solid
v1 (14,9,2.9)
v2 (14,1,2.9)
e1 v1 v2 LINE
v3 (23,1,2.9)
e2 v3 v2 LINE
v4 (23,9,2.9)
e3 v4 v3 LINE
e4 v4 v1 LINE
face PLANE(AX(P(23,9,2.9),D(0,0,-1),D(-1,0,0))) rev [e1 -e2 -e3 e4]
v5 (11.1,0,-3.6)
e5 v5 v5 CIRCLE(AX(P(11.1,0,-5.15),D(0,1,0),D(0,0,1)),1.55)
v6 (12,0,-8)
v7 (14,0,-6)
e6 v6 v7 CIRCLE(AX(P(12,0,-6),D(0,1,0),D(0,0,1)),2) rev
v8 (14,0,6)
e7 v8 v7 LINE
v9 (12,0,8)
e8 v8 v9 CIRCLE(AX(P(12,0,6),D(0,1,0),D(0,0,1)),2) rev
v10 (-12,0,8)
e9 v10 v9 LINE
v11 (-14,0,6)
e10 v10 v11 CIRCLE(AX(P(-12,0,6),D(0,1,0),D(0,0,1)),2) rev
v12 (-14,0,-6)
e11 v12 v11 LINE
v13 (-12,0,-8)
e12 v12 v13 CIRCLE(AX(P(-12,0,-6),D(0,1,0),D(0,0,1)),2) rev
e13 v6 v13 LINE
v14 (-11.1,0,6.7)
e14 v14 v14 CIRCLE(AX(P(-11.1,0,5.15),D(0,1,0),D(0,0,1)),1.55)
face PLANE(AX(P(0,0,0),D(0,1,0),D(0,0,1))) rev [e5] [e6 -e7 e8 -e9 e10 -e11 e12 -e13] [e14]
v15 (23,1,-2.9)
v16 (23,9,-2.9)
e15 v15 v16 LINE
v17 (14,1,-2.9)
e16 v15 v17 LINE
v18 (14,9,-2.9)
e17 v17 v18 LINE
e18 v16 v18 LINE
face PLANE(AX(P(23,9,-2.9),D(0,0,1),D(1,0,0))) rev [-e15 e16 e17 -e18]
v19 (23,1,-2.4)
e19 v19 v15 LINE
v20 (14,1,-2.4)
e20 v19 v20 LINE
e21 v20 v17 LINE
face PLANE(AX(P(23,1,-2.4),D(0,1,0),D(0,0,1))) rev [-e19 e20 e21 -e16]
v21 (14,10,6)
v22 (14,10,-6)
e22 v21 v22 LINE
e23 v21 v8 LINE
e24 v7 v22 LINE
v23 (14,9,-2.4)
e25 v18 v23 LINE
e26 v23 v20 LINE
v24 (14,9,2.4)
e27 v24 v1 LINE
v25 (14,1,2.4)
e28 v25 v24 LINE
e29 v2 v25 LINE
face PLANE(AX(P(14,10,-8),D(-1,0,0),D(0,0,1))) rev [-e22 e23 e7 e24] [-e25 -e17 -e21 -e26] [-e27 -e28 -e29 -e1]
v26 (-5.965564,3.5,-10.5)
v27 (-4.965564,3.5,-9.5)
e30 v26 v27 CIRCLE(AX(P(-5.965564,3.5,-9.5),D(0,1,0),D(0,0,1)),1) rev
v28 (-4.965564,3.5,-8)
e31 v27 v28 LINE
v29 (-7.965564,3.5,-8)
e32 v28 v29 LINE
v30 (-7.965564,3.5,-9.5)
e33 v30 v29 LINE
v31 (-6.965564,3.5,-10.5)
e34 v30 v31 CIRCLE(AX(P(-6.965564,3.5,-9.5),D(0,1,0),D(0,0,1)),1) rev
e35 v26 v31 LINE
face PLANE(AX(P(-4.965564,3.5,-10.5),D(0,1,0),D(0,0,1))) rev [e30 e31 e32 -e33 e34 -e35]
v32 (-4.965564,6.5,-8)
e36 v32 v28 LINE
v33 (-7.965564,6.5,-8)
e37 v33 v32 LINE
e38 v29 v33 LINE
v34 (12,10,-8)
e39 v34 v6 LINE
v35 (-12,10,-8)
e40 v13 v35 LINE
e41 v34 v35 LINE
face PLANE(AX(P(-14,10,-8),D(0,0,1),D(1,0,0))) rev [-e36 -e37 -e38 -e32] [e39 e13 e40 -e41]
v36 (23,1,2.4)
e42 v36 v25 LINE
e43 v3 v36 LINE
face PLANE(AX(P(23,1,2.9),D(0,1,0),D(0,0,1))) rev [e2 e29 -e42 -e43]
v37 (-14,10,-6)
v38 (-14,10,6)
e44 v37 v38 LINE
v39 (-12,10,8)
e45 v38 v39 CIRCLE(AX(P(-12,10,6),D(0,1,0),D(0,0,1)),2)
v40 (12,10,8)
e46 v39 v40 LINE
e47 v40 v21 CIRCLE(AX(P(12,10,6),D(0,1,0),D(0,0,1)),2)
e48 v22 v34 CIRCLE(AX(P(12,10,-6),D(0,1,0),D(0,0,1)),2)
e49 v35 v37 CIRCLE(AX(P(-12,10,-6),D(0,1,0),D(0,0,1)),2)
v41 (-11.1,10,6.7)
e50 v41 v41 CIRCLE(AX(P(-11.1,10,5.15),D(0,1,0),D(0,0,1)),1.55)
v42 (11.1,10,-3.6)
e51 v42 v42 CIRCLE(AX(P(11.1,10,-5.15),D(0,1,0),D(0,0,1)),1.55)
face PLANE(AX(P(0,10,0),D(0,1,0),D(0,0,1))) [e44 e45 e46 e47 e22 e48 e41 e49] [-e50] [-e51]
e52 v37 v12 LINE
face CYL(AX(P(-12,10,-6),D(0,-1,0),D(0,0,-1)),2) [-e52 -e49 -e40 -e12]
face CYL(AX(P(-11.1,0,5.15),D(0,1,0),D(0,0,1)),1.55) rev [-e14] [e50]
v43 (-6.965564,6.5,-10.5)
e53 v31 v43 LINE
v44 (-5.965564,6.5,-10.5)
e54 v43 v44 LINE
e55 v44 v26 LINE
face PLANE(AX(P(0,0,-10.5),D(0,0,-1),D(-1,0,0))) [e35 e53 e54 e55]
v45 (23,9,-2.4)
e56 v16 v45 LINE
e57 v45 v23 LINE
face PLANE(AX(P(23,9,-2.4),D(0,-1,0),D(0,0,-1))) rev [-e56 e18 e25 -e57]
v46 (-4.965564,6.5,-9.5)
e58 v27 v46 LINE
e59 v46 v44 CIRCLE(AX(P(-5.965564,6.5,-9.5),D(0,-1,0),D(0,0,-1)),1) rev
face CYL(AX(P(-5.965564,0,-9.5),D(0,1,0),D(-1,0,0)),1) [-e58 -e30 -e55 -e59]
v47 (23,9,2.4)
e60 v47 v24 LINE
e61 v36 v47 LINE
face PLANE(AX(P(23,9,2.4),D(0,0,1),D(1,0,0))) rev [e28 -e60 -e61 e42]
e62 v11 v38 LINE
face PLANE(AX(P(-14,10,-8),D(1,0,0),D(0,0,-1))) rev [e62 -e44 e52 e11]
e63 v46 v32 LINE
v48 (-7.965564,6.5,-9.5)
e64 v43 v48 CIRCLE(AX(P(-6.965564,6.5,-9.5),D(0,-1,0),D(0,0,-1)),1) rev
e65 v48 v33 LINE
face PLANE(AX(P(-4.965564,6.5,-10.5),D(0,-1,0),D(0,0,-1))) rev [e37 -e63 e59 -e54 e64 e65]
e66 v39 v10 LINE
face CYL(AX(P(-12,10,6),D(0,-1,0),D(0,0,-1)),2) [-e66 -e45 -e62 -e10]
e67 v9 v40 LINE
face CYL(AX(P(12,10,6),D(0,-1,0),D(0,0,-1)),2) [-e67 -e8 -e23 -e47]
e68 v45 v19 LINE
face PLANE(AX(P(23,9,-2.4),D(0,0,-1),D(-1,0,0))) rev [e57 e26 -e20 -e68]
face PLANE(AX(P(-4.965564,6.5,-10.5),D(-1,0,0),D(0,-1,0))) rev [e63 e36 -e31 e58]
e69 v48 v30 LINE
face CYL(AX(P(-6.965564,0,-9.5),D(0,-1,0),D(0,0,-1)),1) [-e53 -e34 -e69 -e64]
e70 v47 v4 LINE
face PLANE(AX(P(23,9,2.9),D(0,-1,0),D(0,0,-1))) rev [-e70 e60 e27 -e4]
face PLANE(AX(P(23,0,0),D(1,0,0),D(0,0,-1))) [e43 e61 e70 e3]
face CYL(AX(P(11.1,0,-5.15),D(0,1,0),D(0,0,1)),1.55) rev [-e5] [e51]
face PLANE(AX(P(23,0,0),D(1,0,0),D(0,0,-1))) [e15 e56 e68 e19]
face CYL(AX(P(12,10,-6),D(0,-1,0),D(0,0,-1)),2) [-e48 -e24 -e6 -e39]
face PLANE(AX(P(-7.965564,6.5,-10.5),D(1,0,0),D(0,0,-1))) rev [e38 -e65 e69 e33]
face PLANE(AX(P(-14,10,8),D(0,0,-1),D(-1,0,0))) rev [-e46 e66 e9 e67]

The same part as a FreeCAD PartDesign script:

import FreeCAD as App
import Part
import Sketcher


def edges_at(feature, points):
    """Names of the edges that pass closest to the given points."""
    edges = feature.Shape.Edges
    near = lambda p: min(range(len(edges)), key=lambda i: edges[i].distToShape(Part.Vertex(*p))[0])
    return sorted({f"Edge{near(p) + 1}" for p in points})

doc = App.newDocument("Part")
body = doc.addObject("PartDesign::Body", "Body")

# Sketch on XZ plane
sketch1 = body.newObject("Sketcher::SketchObject", "Sketch")
sketch1.AttachmentSupport = (doc.getObject("XZ_Plane"), [""])
sketch1.MapMode = "FlatFace"
sketch1.addGeometry([
    Part.LineSegment(App.Vector(-14, -8, 0), App.Vector(-14, 8, 0)),
    Part.LineSegment(App.Vector(-14, 8, 0), App.Vector(14, 8, 0)),
    Part.LineSegment(App.Vector(14, 8, 0), App.Vector(14, -8, 0)),
    Part.LineSegment(App.Vector(14, -8, 0), App.Vector(-14, -8, 0)),
], False)
sketch1.addConstraint([
    Sketcher.Constraint("Coincident", 0, 2, 1, 1),
    Sketcher.Constraint("Coincident", 1, 2, 2, 1),
    Sketcher.Constraint("Coincident", 2, 2, 3, 1),
    Sketcher.Constraint("Coincident", 3, 2, 0, 1),
    Sketcher.Constraint("Vertical", 0),
    Sketcher.Constraint("Horizontal", 1),
    Sketcher.Constraint("Vertical", 2),
    Sketcher.Constraint("Horizontal", 3),
    Sketcher.Constraint("Symmetric", 0, 2, 2, 2, -1, 1),
    Sketcher.Constraint("DistanceX", 1, 1, 1, 2, 28.0),
    Sketcher.Constraint("DistanceY", 0, 1, 0, 2, 16.0),
])
pad1 = body.newObject("PartDesign::Pad", "Pad")
pad1.Profile = sketch1
pad1.Length = 10
pad1.Reversed = True
doc.recompute()

fillet = body.newObject("PartDesign::Fillet", "Fillet")
fillet.Base = (pad1, edges_at(pad1, [
    (-14, 5, -8),
    (14, 5, -8),
    (14, 5, 8),
    (-14, 5, 8),
]))
fillet.Radius = 2

# Sketch on XZ plane
sketch2 = body.newObject("Sketcher::SketchObject", "Sketch001")
sketch2.AttachmentSupport = (doc.getObject("XZ_Plane"), [""])
sketch2.MapMode = "FlatFace"
sketch2.AttachmentOffset = App.Placement(App.Vector(0, 0, -10), App.Rotation())
sketch2.addGeometry([
    Part.Circle(App.Vector(11.1, -5.2, 0), App.Vector(0, 0, 1), 1.6),
    Part.Circle(App.Vector(-11.1, 5.2, 0), App.Vector(0, 0, 1), 1.6),
], False)
sketch2.addConstraint([
    Sketcher.Constraint("Equal", 0, 1),
    Sketcher.Constraint("Symmetric", 0, 3, 1, 3, -1, 1),
    Sketcher.Constraint("Diameter", 0, 3.1),
    Sketcher.Constraint("DistanceX", -1, 1, 0, 3, 11.1),
    Sketcher.Constraint("DistanceY", 0, 3, 1, 3, 10.3),
])
pocket1 = body.newObject("PartDesign::Pocket", "Pocket")
pocket1.Profile = sketch2
pocket1.Length = 10
pocket1.Reversed = True

# Sketch on YZ plane
sketch3 = body.newObject("Sketcher::SketchObject", "Sketch002")
sketch3.AttachmentSupport = (doc.getObject("YZ_Plane"), [""])
sketch3.MapMode = "FlatFace"
sketch3.AttachmentOffset = App.Placement(App.Vector(0, 0, 14), App.Rotation())
sketch3.addGeometry([
    Part.LineSegment(App.Vector(9, 2.9, 0), App.Vector(1, 2.9, 0)),  # 0
    Part.LineSegment(App.Vector(1, 2.9, 0), App.Vector(1, 2.4, 0)),  # 1
    Part.LineSegment(App.Vector(1, 2.4, 0), App.Vector(9, 2.4, 0)),  # 2
    Part.LineSegment(App.Vector(9, 2.4, 0), App.Vector(9, 2.9, 0)),  # 3
    Part.LineSegment(App.Vector(9, -2.4, 0), App.Vector(1, -2.4, 0)),  # 4
    Part.LineSegment(App.Vector(1, -2.4, 0), App.Vector(1, -2.9, 0)),  # 5
    Part.LineSegment(App.Vector(1, -2.9, 0), App.Vector(9, -2.9, 0)),  # 6
    Part.LineSegment(App.Vector(9, -2.9, 0), App.Vector(9, -2.4, 0)),  # 7
], False)
sketch3.addConstraint([
    Sketcher.Constraint("Coincident", 0, 2, 1, 1),
    Sketcher.Constraint("Coincident", 1, 2, 2, 1),
    Sketcher.Constraint("Coincident", 2, 2, 3, 1),
    Sketcher.Constraint("Coincident", 3, 2, 0, 1),
    Sketcher.Constraint("Coincident", 4, 2, 5, 1),
    Sketcher.Constraint("Coincident", 5, 2, 6, 1),
    Sketcher.Constraint("Coincident", 6, 2, 7, 1),
    Sketcher.Constraint("Coincident", 7, 2, 4, 1),
    Sketcher.Constraint("Horizontal", 0),
    Sketcher.Constraint("Vertical", 1),
    Sketcher.Constraint("Horizontal", 2),
    Sketcher.Constraint("Vertical", 3),
    Sketcher.Constraint("Horizontal", 4),
    Sketcher.Constraint("Vertical", 5),
    Sketcher.Constraint("Horizontal", 6),
    Sketcher.Constraint("Vertical", 7),
    Sketcher.Constraint("Symmetric", 1, 2, 4, 2, -1),
    Sketcher.Constraint("Symmetric", 3, 2, 6, 2, -1),
    Sketcher.Constraint("DistanceX", 0, 2, 0, 1, 8.0),
    Sketcher.Constraint("DistanceY", 1, 2, 1, 1, 0.5),
    Sketcher.Constraint("DistanceX", -1, 1, 0, 2, 1.0),
    Sketcher.Constraint("DistanceY", -1, 1, 0, 2, 2.9),
])
pad2 = body.newObject("PartDesign::Pad", "Pad001")
pad2.Profile = sketch3
pad2.Length = 9

# Sketch on XY plane
sketch4 = body.newObject("Sketcher::SketchObject", "Sketch003")
sketch4.AttachmentSupport = (doc.getObject("XY_Plane"), [""])
sketch4.MapMode = "FlatFace"
sketch4.AttachmentOffset = App.Placement(App.Vector(0, 0, -8), App.Rotation())
sketch4.addGeometry([
    Part.LineSegment(App.Vector(-5, 6.5, 0), App.Vector(-5, 3.5, 0)),
    Part.LineSegment(App.Vector(-5, 3.5, 0), App.Vector(-8, 3.5, 0)),
    Part.LineSegment(App.Vector(-8, 3.5, 0), App.Vector(-8, 6.5, 0)),
    Part.LineSegment(App.Vector(-8, 6.5, 0), App.Vector(-5, 6.5, 0)),
], False)
sketch4.addConstraint([
    Sketcher.Constraint("Coincident", 0, 2, 1, 1),
    Sketcher.Constraint("Coincident", 1, 2, 2, 1),
    Sketcher.Constraint("Coincident", 2, 2, 3, 1),
    Sketcher.Constraint("Coincident", 3, 2, 0, 1),
    Sketcher.Constraint("Vertical", 0),
    Sketcher.Constraint("Horizontal", 1),
    Sketcher.Constraint("Vertical", 2),
    Sketcher.Constraint("Horizontal", 3),
    Sketcher.Constraint("Equal", 3, 0),
    Sketcher.Constraint("DistanceX", 1, 2, 1, 1, 3.0),
    Sketcher.Constraint("DistanceY", -1, 1, 0, 2, 3.5),
    Sketcher.Constraint("DistanceX", 0, 2, -1, 1, 4.965564),
])
pad3 = body.newObject("PartDesign::Pad", "Pad002")
pad3.Profile = sketch4
pad3.Length = 2.5
pad3.Reversed = True
doc.recompute()

fillet2 = body.newObject("PartDesign::Fillet", "Fillet001")
fillet2.Base = (pad3, edges_at(pad3, [(-4.966, 5, -10.5), (-7.966, 5, -10.5)]))
fillet2.Radius = 1

doc.recompute()
